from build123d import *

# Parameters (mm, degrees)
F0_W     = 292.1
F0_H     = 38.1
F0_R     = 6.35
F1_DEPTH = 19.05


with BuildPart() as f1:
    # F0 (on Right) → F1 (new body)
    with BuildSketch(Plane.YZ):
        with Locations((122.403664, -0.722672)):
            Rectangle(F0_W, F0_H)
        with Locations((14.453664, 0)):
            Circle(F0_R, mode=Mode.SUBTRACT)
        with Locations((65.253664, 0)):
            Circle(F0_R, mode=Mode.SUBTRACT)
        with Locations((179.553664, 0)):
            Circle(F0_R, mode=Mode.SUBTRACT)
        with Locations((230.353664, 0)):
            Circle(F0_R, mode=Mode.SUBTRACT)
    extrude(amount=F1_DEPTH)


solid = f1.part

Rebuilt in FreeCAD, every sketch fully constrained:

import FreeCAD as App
import Part
import Sketcher

V = App.Vector
Q = App.Units.Quantity


def add_polygon(sketch, points):
    """Adds a closed chain of lines whose ends are joined by coincident constraints."""
    first, n = sketch.GeometryCount, len(points)
    for a, b in zip(points, points[1:] + points[:1]):
        sketch.addGeometry(Part.LineSegment(App.Vector(*a, 0), App.Vector(*b, 0)), False)
    for i in range(n):
        sketch.addConstraint(Sketcher.Constraint("Coincident", first + i, 2, first + (i + 1) % n, 1))

doc = App.newDocument("Part")
body = doc.addObject("PartDesign::Body", "Body")

# Sketch on YZ plane
sketch1 = doc.addObject("Sketcher::SketchObject", "Sketch")
body.addObject(sketch1)
sketch1.AttachmentSupport = (doc.YZ_Plane, [""])
sketch1.MapMode = "FlatFace"
add_polygon(sketch1, [(-24, 18), (-24, -20), (268, -20), (268, 18)])  # lines 0-3
sketch1.addGeometry(Part.Circle(V(14, 0, 0), V(0, 0, 1), 6), False)  # 4
sketch1.addGeometry(Part.Circle(V(65, 0, 0), V(0, 0, 1), 6), False)  # 5
sketch1.addGeometry(Part.Circle(V(180, 0, 0), V(0, 0, 1), 6), False)  # 6
sketch1.addGeometry(Part.Circle(V(230, 0, 0), V(0, 0, 1), 6), False)  # 7
sketch1.addConstraint(Sketcher.Constraint("Vertical", 0))
sketch1.addConstraint(Sketcher.Constraint("Horizontal", 1))
sketch1.addConstraint(Sketcher.Constraint("Vertical", 2))
sketch1.addConstraint(Sketcher.Constraint("Horizontal", 3))
sketch1.addConstraint(Sketcher.Constraint("Equal", 4, 5))
sketch1.addConstraint(Sketcher.Constraint("Equal", 5, 6))
sketch1.addConstraint(Sketcher.Constraint("Equal", 6, 7))
sketch1.addConstraint(Sketcher.Constraint("PointOnObject", 4, 3, -1))
sketch1.addConstraint(Sketcher.Constraint("PointOnObject", 5, 3, -1))
sketch1.addConstraint(Sketcher.Constraint("PointOnObject", 6, 3, -1))
sketch1.addConstraint(Sketcher.Constraint("PointOnObject", 7, 3, -1))
sketch1.addConstraint(Sketcher.Constraint("Diameter", 4, Q("0.5 in")))
sketch1.addConstraint(Sketcher.Constraint("DistanceX", 1, 1, 1, 2, Q("11.5 in")))
sketch1.addConstraint(Sketcher.Constraint("DistanceY", 0, 2, 0, 1, Q("1.5 in")))
sketch1.addConstraint(Sketcher.Constraint("DistanceX", 4, 3, 5, 3, Q("2 in")))
sketch1.addConstraint(Sketcher.Constraint("DistanceX", 6, 3, 7, 3, Q("2 in")))
sketch1.addConstraint(Sketcher.Constraint("DistanceX", 0, 2, 6, 3, Q("8 in")))
sketch1.addConstraint(Sketcher.Constraint("DistanceX", 5, 3, 1, 2, Q("8 in")))
sketch1.addConstraint(Sketcher.Constraint("DistanceY", 0, 2, -1, 1, Q("19.772672 mm")))
sketch1.addConstraint(Sketcher.Constraint("DistanceX", -1, 1, 4, 3, Q("14.453664 mm")))
pad1 = doc.addObject("PartDesign::Pad", "Pad")
body.addObject(pad1)
pad1.Profile = sketch1
pad1.Length = Q("0.75 in")

doc.recompute()
